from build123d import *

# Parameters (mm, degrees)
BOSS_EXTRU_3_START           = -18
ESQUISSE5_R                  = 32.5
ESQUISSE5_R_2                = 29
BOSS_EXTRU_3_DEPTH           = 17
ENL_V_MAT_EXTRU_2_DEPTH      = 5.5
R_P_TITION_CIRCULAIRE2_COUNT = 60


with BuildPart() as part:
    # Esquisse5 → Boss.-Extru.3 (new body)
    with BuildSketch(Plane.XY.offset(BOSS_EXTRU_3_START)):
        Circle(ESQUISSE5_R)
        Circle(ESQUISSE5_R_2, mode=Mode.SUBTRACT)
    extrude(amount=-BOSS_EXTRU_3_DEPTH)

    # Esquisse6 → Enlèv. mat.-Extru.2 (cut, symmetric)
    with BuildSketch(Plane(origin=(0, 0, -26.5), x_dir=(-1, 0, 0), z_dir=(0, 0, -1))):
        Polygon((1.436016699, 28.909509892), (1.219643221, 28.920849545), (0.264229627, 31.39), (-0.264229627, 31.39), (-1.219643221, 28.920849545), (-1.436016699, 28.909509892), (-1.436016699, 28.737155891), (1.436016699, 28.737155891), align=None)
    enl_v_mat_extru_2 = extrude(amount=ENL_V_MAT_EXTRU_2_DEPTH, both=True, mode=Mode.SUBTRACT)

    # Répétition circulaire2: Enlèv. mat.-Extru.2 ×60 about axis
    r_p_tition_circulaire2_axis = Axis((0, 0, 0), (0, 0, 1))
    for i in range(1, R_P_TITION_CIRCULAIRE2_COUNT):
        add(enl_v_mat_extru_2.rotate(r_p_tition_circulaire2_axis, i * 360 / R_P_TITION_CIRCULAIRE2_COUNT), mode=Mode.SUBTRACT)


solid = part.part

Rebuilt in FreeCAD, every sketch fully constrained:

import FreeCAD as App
import Part
import Sketcher
from FreeCAD import Vector
Q = App.Units.Quantity

doc = App.newDocument("Part")
body = doc.addObject("PartDesign::Body", "Body")

# Sketch on XY plane
sketch1 = body.newObject("Sketcher::SketchObject", "Sketch")
sketch1.AttachmentSupport = (doc.getObject("XY_Plane"), [""])
sketch1.MapMode = "FlatFace"
sketch1.AttachmentOffset = App.Placement(Vector(0, 0, -18), App.Rotation())
sketch1.addGeometry(Part.Circle(Vector(0, 0, 0), Vector(0, 0, 1), 32), False)
sketch1.addGeometry(Part.Circle(Vector(0, 0, 0), Vector(0, 0, 1), 29), False)
sketch1.addConstraint(Sketcher.Constraint("Coincident", 0, 3, -1, 1))
sketch1.addConstraint(Sketcher.Constraint("Coincident", 1, 3, -1, 1))
sketch1.addConstraint(Sketcher.Constraint("Diameter", 0, Q("65 mm")))
sketch1.addConstraint(Sketcher.Constraint("Diameter", 1, Q("58 mm")))
pad1 = body.newObject("PartDesign::Pad", "Pad")
pad1.Profile = sketch1
pad1.Length = 17
pad1.Reversed = True

# Sketch on XY plane
sketch2 = body.newObject("Sketcher::SketchObject", "Sketch001")
sketch2.AttachmentSupport = (doc.getObject("XY_Plane"), [""])
sketch2.MapMode = "FlatFace"
sketch2.AttachmentOffset = App.Placement(Vector(0, 0, -26.5), App.Rotation())
sketch2.addGeometry(Part.LineSegment(Vector(-1.44, 28.91, 0), Vector(-1.22, 28.92, 0)), False)
sketch2.addGeometry(Part.LineSegment(Vector(-1.22, 28.92, 0), Vector(-0.26, 31.39, 0)), False)
sketch2.addGeometry(Part.LineSegment(Vector(-0.26, 31.39, 0), Vector(0.26, 31.39, 0)), False)
sketch2.addGeometry(Part.LineSegment(Vector(0.26, 31.39, 0), Vector(1.22, 28.92, 0)), False)
sketch2.addGeometry(Part.LineSegment(Vector(1.22, 28.92, 0), Vector(1.44, 28.91, 0)), False)
sketch2.addGeometry(Part.LineSegment(Vector(1.44, 28.91, 0), Vector(1.44, 28.74, 0)), False)
sketch2.addGeometry(Part.LineSegment(Vector(1.44, 28.74, 0), Vector(-1.44, 28.74, 0)), False)
sketch2.addGeometry(Part.LineSegment(Vector(-1.44, 28.74, 0), Vector(-1.44, 28.91, 0)), False)
sketch2.addConstraint(Sketcher.Constraint("Coincident", 0, 2, 1, 1))
sketch2.addConstraint(Sketcher.Constraint("Coincident", 1, 2, 2, 1))
sketch2.addConstraint(Sketcher.Constraint("Coincident", 2, 2, 3, 1))
sketch2.addConstraint(Sketcher.Constraint("Coincident", 3, 2, 4, 1))
sketch2.addConstraint(Sketcher.Constraint("Coincident", 4, 2, 5, 1))
sketch2.addConstraint(Sketcher.Constraint("Coincident", 5, 2, 6, 1))
sketch2.addConstraint(Sketcher.Constraint("Coincident", 6, 2, 7, 1))
sketch2.addConstraint(Sketcher.Constraint("Coincident", 7, 2, 0, 1))
sketch2.addConstraint(Sketcher.Constraint("Horizontal", 2))
sketch2.addConstraint(Sketcher.Constraint("Vertical", 5))
sketch2.addConstraint(Sketcher.Constraint("Horizontal", 6))
sketch2.addConstraint(Sketcher.Constraint("Vertical", 7))
sketch2.addConstraint(Sketcher.Constraint("Symmetric", 0, 2, 3, 2, -2))
sketch2.addConstraint(Sketcher.Constraint("Symmetric", 4, 2, 7, 2, -2))
sketch2.addConstraint(Sketcher.Constraint("Equal", 1, 3))
sketch2.addConstraint(Sketcher.Constraint("Angle", 0, Q("3 deg")))
sketch2.addConstraint(Sketcher.Constraint("DistanceY", -1, 1, 1, 2, Q("31.39 mm")))
sketch2.addConstraint(Sketcher.Constraint("DistanceX", 2, 1, 2, 2, Q("0.528459 mm")))
sketch2.addConstraint(Sketcher.Constraint("Distance", 0, Q("0.21667 mm")))
sketch2.addConstraint(Sketcher.Constraint("Distance", 1, Q("2.64755 mm")))
sketch2.addConstraint(Sketcher.Constraint("DistanceX", 6, 2, 6, 1, Q("2.872033 mm")))
sketch2.addConstraint(Sketcher.Constraint("DistanceY", 5, 2, 5, 1, Q("0.172354 mm")))
pocket1 = body.newObject("PartDesign::Pocket", "Pocket")
pocket1.Profile = sketch2
pocket1.Length = 11
pocket1.Midplane = True
doc.recompute()

polarpattern = body.newObject("PartDesign::PolarPattern", "PolarPattern")
polarpattern.Originals = [pocket1]
polarpattern.Axis = (doc.getObject("Z_Axis"), [""])
polarpattern.Angle = 360
polarpattern.Occurrences = 60
body.Tip = polarpattern

doc.recompute()
